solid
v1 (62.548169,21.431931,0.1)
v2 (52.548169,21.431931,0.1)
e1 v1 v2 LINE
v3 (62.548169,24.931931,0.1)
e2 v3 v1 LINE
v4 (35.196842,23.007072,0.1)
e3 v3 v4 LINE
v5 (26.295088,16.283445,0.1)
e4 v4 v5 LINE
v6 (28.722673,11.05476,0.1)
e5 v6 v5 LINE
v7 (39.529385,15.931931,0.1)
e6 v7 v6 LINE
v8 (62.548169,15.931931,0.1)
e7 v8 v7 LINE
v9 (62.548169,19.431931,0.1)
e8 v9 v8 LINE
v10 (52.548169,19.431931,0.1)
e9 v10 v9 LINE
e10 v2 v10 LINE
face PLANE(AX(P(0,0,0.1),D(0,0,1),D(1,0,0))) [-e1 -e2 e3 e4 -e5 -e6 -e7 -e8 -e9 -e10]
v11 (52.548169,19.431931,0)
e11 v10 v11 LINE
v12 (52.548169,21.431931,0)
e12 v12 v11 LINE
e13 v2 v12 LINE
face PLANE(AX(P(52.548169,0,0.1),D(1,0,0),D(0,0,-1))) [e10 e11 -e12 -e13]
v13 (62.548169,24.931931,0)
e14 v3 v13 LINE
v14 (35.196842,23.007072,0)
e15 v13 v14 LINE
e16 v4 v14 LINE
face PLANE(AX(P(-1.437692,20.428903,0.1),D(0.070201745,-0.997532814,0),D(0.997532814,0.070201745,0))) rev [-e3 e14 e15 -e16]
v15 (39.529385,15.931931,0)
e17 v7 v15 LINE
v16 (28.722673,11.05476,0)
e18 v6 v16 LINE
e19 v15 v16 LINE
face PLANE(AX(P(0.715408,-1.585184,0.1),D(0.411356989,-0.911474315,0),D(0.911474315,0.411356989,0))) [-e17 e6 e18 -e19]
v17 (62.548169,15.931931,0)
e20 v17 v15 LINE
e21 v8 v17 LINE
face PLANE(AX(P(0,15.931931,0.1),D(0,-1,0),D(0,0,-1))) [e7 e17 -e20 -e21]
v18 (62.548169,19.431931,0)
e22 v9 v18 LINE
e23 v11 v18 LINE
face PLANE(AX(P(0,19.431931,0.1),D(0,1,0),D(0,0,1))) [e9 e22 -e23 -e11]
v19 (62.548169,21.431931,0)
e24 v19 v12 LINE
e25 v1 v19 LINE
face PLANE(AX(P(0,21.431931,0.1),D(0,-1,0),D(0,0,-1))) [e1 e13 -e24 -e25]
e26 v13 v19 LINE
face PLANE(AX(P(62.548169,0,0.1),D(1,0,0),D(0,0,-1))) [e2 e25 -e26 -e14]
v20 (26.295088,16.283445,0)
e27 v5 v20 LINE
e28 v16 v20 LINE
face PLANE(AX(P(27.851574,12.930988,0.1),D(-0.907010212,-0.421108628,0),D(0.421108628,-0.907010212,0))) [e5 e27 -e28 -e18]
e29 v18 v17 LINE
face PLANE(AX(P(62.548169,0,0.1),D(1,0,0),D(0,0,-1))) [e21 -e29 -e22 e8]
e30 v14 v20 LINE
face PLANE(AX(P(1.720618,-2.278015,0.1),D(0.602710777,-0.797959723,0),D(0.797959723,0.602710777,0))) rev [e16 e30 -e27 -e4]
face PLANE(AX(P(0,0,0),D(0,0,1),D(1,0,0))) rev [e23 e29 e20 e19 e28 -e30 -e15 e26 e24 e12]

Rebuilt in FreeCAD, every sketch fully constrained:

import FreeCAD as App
import Part
import Sketcher

doc = App.newDocument("Part")
body = doc.addObject("PartDesign::Body", "Body")

# Sketch on XY plane
sketch1 = body.newObject("Sketcher::SketchObject", "Sketch")
sketch1.AttachmentSupport = (doc.getObject("XY_Plane"), [""])
sketch1.MapMode = "FlatFace"
sketch1.addGeometry(Part.LineSegment(App.Vector(62.548169, 15.931931, 0), App.Vector(62.548169, 19.431931, 0)), False)
sketch1.addGeometry(Part.LineSegment(App.Vector(62.548169, 19.431931, 0), App.Vector(52.548169, 19.431931, 0)), False)
sketch1.addGeometry(Part.LineSegment(App.Vector(52.548169, 19.431931, 0), App.Vector(52.548169, 21.431931, 0)), False)
sketch1.addGeometry(Part.LineSegment(App.Vector(52.548169, 21.431931, 0), App.Vector(62.548169, 21.431931, 0)), False)
sketch1.addGeometry(Part.LineSegment(App.Vector(62.548169, 21.431931, 0), App.Vector(62.548169, 24.931931, 0)), False)
sketch1.addGeometry(Part.LineSegment(App.Vector(62.548169, 24.931931, 0), App.Vector(35.196842, 23.007072, 0)), False)
sketch1.addGeometry(Part.LineSegment(App.Vector(35.196842, 23.007072, 0), App.Vector(26.295088, 16.283445, 0)), False)
sketch1.addGeometry(Part.LineSegment(App.Vector(26.295088, 16.283445, 0), App.Vector(28.722673, 11.05476, 0)), False)
sketch1.addGeometry(Part.LineSegment(App.Vector(28.722673, 11.05476, 0), App.Vector(39.529385, 15.931931, 0)), False)
sketch1.addGeometry(Part.LineSegment(App.Vector(39.529385, 15.931931, 0), App.Vector(62.548169, 15.931931, 0)), False)
sketch1.addConstraint(Sketcher.Constraint("Coincident", 0, 2, 1, 1))
sketch1.addConstraint(Sketcher.Constraint("Coincident", 1, 2, 2, 1))
sketch1.addConstraint(Sketcher.Constraint("Coincident", 2, 2, 3, 1))
sketch1.addConstraint(Sketcher.Constraint("Coincident", 3, 2, 4, 1))
sketch1.addConstraint(Sketcher.Constraint("Coincident", 4, 2, 5, 1))
sketch1.addConstraint(Sketcher.Constraint("Coincident", 5, 2, 6, 1))
sketch1.addConstraint(Sketcher.Constraint("Coincident", 6, 2, 7, 1))
sketch1.addConstraint(Sketcher.Constraint("Coincident", 7, 2, 8, 1))
sketch1.addConstraint(Sketcher.Constraint("Coincident", 8, 2, 9, 1))
sketch1.addConstraint(Sketcher.Constraint("Coincident", 9, 2, 0, 1))
sketch1.addConstraint(Sketcher.Constraint("Vertical", 0))
sketch1.addConstraint(Sketcher.Constraint("Horizontal", 1))
sketch1.addConstraint(Sketcher.Constraint("Vertical", 2))
sketch1.addConstraint(Sketcher.Constraint("Horizontal", 3))
sketch1.addConstraint(Sketcher.Constraint("Vertical", 4))
sketch1.addConstraint(Sketcher.Constraint("Horizontal", 9))
sketch1.addConstraint(Sketcher.Constraint("Vertical", 0, 2, 3, 2))
sketch1.addConstraint(Sketcher.Constraint("Equal", 0, 4))
sketch1.addConstraint(Sketcher.Constraint("DistanceX", 1, 2, 1, 1, 10.0))
sketch1.addConstraint(Sketcher.Constraint("DistanceY", 2, 1, 2, 2, 2.0))
sketch1.addConstraint(Sketcher.Constraint("DistanceY", 0, 1, 0, 2, 3.5))
sketch1.addConstraint(Sketcher.Constraint("Distance", 8, 11.8563))
sketch1.addConstraint(Sketcher.Constraint("Distance", 7, 5.764748))
sketch1.addConstraint(Sketcher.Constraint("DistanceX", 9, 1, 9, 2, 23.018784))
sketch1.addConstraint(Sketcher.Constraint("DistanceX", -1, 1, 0, 2, 62.548169))
sketch1.addConstraint(Sketcher.Constraint("DistanceY", -1, 1, 0, 2, 19.431931))
sketch1.addConstraint(Sketcher.Constraint("DistanceX", -1, 1, 5, 2, 35.196842))
sketch1.addConstraint(Sketcher.Constraint("DistanceY", -1, 1, 5, 2, 23.007072))
sketch1.addConstraint(Sketcher.Constraint("DistanceY", -1, 1, 7, 2, 11.05476))
sketch1.addConstraint(Sketcher.Constraint("DistanceX", 6, 2, 1, 2, 26.253081))
pad1 = body.newObject("PartDesign::Pad", "Pad")
pad1.Profile = sketch1
pad1.Length = 0.1

doc.recompute()
